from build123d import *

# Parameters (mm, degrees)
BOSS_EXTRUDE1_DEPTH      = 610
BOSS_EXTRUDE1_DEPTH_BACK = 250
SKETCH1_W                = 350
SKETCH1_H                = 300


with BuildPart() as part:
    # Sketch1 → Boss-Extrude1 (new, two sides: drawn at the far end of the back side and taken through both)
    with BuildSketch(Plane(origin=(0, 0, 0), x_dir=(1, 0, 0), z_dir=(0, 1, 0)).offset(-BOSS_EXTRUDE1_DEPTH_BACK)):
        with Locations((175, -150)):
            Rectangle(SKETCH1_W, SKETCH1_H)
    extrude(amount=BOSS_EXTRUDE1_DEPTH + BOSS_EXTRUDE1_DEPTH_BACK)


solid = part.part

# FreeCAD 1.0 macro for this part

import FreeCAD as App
import Part
import Sketcher
Q = App.Units.Quantity


def add_polygon(sketch, points):
    """Adds a closed chain of lines whose ends are joined by coincident constraints."""
    first, n = sketch.GeometryCount, len(points)
    for a, b in zip(points, points[1:] + points[:1]):
        sketch.addGeometry(Part.LineSegment(App.Vector(*a, 0), App.Vector(*b, 0)), False)
    for i in range(n):
        sketch.addConstraint(Sketcher.Constraint("Coincident", first + i, 2, first + (i + 1) % n, 1))

doc = App.newDocument("Part")
params = doc.addObject("Spreadsheet::Sheet", "Params")
for row, (alias, value) in enumerate([
    ("sketch1_width", "350 mm"),
    ("sketch1_height", "300 mm"),
    ("pad1_length", "610 mm"),
    ("pad1_length2", "250 mm"),
], start=1):
    params.set(f"A{row}", alias)
    params.set(f"B{row}", "=" + value)
    params.setAlias(f"B{row}", alias)

body = doc.addObject("PartDesign::Body", "Body")

sketch1 = body.newObject("Sketcher::SketchObject", "Sketch")
sketch1.AttachmentSupport = (doc.getObject("XZ_Plane"), [""])
sketch1.MapMode = "FlatFace"
add_polygon(sketch1, [(0, 0), (0, 300), (350, 300), (350, 0)])
sketch1.addConstraint(Sketcher.Constraint("Vertical", 0))
sketch1.addConstraint(Sketcher.Constraint("Horizontal", 1))
sketch1.addConstraint(Sketcher.Constraint("Vertical", 2))
sketch1.addConstraint(Sketcher.Constraint("Horizontal", 3))
sketch1.addConstraint(Sketcher.Constraint("Coincident", 3, 2, -1, 1))
sketch1.addConstraint(Sketcher.Constraint("DistanceX", 1, 1, 1, 2, Q("350 mm")))
sketch1.addConstraint(Sketcher.Constraint("DistanceY", 0, 1, 0, 2, Q("300 mm")))
sketch1.setExpression("Constraints[9]", "Params.sketch1_width")
sketch1.setExpression("Constraints[10]", "Params.sketch1_height")
pad1 = body.newObject("PartDesign::Pad", "Pad")
pad1.Profile = sketch1
pad1.Type = "TwoLengths"
pad1.setExpression("Length", "Params.pad1_length")
pad1.setExpression("Length2", "Params.pad1_length2")
pad1.Reversed = True

doc.recompute()
